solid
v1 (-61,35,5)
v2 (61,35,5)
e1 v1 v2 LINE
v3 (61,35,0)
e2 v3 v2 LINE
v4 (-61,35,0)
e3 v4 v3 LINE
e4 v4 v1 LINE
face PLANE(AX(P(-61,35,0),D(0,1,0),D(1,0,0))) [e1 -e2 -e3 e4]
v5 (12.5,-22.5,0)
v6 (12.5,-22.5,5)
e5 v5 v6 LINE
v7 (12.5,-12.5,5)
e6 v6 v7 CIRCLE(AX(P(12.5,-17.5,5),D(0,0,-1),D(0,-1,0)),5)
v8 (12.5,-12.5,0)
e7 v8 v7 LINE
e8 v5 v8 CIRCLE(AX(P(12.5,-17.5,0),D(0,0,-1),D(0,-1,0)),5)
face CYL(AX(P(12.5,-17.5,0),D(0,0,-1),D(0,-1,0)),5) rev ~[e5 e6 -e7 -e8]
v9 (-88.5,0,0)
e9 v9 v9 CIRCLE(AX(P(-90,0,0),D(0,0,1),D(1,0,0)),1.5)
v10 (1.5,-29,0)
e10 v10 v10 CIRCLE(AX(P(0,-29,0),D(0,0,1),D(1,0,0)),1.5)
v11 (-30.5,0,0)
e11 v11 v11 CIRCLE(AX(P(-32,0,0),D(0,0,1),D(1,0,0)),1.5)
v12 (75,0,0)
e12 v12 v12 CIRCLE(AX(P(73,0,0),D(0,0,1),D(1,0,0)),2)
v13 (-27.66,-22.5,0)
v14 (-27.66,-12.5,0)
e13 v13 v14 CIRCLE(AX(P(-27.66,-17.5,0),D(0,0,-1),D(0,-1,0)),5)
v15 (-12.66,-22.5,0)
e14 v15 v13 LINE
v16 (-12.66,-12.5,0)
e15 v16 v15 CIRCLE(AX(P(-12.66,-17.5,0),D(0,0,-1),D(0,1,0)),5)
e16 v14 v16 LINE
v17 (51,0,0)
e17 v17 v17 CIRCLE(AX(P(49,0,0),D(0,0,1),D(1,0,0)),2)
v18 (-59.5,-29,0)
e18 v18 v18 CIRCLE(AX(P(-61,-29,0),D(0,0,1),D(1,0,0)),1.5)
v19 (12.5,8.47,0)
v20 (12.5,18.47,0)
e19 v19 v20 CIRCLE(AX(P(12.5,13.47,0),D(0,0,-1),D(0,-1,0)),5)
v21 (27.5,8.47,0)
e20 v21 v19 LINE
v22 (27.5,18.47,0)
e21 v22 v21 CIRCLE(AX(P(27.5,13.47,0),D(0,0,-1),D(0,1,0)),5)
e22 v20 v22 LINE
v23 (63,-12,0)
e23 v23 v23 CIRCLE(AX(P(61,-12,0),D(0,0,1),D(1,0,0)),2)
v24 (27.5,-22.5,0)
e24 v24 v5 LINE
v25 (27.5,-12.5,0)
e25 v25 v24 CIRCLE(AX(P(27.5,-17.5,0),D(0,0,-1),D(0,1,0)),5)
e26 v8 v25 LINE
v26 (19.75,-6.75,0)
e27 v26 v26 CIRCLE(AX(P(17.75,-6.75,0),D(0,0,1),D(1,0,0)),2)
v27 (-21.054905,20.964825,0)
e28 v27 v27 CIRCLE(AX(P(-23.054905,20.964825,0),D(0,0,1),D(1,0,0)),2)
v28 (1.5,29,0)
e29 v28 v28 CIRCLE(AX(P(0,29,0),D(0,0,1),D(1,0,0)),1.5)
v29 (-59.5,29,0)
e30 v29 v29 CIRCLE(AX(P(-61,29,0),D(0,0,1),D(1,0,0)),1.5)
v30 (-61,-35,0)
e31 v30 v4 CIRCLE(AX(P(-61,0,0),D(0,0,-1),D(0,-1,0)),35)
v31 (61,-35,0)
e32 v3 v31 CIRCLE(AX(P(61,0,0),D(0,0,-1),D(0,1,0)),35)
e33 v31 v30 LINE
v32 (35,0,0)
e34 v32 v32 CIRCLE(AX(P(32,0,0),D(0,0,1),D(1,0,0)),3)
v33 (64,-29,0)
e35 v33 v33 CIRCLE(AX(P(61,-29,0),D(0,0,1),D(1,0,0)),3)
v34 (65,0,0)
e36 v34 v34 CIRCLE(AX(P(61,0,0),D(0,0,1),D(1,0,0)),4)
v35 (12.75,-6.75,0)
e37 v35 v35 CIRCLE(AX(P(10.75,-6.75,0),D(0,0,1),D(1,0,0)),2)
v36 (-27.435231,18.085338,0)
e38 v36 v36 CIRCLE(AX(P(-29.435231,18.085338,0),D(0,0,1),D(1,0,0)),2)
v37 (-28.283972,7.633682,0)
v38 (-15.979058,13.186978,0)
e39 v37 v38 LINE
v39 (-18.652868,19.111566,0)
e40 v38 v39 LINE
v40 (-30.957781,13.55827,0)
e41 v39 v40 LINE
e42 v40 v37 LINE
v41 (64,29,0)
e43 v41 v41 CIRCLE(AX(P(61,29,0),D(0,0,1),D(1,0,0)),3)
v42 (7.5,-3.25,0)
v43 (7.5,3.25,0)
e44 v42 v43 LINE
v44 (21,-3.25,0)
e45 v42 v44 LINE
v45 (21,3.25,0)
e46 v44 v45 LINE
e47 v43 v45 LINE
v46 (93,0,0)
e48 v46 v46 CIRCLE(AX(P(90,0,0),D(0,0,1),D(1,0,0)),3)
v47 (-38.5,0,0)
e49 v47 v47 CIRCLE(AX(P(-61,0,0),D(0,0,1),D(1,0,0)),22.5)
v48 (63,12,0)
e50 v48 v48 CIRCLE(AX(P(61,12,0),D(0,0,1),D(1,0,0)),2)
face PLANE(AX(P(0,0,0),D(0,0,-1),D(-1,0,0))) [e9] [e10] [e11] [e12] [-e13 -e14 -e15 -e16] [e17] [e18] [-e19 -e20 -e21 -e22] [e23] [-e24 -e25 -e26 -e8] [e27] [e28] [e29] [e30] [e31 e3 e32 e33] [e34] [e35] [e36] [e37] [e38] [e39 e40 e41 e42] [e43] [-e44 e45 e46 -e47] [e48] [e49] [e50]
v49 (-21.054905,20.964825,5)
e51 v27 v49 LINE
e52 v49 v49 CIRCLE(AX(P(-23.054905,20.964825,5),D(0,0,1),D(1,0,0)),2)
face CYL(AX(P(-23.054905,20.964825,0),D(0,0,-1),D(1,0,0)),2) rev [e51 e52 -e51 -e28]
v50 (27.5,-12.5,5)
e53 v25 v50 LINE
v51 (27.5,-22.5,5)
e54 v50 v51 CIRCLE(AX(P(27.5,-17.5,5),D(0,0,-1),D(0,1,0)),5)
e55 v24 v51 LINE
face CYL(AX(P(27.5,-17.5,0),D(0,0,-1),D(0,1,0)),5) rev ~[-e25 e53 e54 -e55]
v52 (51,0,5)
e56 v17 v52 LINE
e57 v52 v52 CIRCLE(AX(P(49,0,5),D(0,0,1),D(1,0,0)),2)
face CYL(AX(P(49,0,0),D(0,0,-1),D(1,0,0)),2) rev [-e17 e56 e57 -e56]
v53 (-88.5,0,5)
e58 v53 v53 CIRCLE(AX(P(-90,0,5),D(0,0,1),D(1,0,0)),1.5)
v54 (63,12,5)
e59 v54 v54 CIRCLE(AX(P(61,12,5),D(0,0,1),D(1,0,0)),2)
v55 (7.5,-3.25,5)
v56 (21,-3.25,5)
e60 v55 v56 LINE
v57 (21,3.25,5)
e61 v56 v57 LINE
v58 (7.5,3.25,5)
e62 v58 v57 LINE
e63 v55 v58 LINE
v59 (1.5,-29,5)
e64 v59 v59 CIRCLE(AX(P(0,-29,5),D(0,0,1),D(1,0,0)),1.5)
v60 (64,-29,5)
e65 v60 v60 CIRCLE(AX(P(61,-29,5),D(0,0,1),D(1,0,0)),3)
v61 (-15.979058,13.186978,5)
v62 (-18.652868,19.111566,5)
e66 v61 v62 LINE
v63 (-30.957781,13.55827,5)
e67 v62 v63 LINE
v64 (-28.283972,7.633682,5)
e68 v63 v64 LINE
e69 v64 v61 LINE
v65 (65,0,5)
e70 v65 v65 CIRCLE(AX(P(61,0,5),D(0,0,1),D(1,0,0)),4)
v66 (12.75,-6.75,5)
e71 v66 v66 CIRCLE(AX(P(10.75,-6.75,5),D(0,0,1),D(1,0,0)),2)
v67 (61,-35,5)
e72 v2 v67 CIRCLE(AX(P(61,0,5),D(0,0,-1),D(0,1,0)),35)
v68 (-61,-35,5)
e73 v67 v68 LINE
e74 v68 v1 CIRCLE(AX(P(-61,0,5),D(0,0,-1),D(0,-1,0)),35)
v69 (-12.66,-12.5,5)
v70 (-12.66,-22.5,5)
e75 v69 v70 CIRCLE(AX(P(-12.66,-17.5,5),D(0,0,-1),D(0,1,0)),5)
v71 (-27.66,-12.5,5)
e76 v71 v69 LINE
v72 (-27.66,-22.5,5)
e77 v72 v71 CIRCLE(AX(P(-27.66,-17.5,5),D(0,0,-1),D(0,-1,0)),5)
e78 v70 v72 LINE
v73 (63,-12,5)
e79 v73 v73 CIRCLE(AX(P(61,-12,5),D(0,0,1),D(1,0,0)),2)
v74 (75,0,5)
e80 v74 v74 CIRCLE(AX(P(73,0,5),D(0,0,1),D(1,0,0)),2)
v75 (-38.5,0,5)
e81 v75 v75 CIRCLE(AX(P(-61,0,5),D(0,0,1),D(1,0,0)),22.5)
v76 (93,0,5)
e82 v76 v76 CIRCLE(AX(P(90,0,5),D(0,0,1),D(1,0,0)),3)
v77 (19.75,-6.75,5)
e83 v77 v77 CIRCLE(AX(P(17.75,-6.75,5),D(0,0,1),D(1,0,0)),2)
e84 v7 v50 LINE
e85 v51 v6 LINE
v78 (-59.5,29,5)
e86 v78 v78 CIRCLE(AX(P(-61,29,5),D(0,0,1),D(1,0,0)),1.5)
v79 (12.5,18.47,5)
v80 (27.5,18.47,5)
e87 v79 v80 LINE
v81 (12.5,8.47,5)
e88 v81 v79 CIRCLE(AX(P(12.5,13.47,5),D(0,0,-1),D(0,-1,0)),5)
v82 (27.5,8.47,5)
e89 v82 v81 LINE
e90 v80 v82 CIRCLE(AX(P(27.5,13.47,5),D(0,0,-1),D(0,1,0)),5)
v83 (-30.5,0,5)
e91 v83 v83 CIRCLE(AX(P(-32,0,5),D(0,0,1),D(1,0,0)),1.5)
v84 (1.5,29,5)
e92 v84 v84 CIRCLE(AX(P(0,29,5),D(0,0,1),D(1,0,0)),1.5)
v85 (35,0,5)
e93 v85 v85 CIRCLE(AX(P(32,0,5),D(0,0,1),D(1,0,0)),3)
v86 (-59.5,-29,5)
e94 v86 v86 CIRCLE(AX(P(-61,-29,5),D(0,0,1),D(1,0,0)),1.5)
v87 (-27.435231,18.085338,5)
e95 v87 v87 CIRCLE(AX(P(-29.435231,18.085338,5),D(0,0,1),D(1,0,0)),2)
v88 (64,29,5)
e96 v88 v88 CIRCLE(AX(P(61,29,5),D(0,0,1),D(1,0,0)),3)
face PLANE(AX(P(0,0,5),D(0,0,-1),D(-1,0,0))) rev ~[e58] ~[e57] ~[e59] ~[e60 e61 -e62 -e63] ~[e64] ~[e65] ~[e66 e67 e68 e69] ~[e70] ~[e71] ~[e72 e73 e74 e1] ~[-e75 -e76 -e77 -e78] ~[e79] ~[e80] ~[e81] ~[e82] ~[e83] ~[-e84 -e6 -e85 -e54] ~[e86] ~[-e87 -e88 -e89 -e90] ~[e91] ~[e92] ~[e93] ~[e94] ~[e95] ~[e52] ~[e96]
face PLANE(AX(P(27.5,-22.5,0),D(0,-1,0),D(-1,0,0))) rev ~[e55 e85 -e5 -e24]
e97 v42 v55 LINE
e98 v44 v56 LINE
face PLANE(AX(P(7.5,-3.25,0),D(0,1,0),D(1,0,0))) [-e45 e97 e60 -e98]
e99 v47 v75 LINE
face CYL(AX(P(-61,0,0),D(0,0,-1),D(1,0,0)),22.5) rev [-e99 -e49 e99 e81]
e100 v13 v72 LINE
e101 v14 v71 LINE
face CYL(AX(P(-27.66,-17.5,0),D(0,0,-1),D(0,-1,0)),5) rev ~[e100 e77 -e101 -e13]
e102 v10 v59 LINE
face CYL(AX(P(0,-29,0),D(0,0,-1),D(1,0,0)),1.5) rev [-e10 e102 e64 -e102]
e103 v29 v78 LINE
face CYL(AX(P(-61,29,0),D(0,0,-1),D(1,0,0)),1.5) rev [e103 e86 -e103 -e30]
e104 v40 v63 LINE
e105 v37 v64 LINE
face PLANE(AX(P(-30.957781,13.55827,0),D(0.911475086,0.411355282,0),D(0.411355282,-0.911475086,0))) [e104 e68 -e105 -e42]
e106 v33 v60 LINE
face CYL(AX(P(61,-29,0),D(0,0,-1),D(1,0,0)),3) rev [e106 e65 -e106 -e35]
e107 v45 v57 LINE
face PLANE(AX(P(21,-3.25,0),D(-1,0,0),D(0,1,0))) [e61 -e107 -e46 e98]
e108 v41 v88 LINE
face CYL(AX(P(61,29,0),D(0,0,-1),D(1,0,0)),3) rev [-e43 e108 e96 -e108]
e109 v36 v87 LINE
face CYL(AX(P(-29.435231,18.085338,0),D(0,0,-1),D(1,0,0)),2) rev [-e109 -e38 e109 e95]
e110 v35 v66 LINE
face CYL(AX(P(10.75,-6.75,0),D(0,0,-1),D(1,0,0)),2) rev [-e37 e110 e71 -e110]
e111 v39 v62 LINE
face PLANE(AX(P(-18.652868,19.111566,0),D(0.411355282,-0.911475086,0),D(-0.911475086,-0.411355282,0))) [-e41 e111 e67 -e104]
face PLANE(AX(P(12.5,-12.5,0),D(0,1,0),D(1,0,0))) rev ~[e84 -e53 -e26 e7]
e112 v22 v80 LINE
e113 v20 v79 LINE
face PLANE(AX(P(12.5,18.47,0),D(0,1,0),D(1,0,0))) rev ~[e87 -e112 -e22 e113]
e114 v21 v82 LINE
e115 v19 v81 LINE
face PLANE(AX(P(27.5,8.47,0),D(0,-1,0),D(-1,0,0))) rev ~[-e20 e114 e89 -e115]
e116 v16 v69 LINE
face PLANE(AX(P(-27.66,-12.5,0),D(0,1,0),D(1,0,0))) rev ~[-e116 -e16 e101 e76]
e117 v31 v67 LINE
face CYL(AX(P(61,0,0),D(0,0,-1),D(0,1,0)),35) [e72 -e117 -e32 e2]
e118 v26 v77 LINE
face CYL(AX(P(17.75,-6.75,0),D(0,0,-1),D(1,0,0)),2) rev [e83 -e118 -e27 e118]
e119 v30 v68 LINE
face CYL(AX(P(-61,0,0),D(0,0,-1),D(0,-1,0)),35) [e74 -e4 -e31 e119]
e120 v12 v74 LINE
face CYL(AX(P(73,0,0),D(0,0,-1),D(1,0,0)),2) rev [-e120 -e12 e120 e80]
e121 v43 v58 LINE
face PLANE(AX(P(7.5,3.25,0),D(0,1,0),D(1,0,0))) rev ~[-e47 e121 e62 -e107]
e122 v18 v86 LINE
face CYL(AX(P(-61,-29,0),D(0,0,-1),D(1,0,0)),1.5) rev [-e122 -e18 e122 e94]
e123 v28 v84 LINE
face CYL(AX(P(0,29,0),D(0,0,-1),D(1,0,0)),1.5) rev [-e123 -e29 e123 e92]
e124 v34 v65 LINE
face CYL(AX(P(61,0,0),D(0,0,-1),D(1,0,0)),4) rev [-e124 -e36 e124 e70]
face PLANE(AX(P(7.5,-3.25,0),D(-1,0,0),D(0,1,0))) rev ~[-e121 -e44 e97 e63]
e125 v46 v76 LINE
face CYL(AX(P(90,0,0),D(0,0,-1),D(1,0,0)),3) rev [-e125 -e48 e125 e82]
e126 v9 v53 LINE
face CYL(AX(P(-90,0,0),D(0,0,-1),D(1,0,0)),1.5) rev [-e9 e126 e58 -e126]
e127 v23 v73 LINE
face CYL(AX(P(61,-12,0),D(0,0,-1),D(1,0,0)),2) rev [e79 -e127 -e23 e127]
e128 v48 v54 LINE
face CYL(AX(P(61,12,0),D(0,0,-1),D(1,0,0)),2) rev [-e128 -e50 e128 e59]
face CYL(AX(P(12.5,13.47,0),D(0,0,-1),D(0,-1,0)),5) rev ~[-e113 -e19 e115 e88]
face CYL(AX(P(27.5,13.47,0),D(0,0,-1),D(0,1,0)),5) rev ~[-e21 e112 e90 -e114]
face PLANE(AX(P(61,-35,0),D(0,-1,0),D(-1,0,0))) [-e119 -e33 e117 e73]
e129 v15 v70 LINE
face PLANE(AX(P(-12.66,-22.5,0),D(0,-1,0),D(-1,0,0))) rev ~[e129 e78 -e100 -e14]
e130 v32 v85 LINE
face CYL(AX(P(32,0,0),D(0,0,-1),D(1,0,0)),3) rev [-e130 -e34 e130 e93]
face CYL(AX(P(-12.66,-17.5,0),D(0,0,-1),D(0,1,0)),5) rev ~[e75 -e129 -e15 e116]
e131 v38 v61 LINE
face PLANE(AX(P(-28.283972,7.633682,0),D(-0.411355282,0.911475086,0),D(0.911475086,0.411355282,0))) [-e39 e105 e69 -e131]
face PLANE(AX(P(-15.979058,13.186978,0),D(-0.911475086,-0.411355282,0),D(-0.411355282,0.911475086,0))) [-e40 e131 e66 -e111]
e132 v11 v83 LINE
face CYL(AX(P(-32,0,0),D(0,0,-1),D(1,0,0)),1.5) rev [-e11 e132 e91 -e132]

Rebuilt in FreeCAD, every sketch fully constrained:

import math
import FreeCAD as App
import Part
import Sketcher
Q = App.Units.Quantity


def add_polygon(sketch, points):
    """Adds a closed chain of lines whose ends are joined by coincident constraints."""
    first, n = sketch.GeometryCount, len(points)
    for a, b in zip(points, points[1:] + points[:1]):
        sketch.addGeometry(Part.LineSegment(App.Vector(*a, 0), App.Vector(*b, 0)), False)
    for i in range(n):
        sketch.addConstraint(Sketcher.Constraint("Coincident", first + i, 2, first + (i + 1) % n, 1))

doc = App.newDocument("Part")
body = doc.addObject("PartDesign::Body", "Body")

sketch1 = doc.addObject("Sketcher::SketchObject", "Sketch")
body.addObject(sketch1)
sketch1.AttachmentSupport = (doc.XY_Plane, [""])
sketch1.MapMode = "FlatFace"
sketch1.addGeometry(Part.LineSegment(App.Vector(-61, -35, 0), App.Vector(61, -35, 0)), False)
sketch1.addGeometry(Part.ArcOfCircle(Part.Circle(App.Vector(61, 0, 0), App.Vector(0, 0, 1), 35), math.radians(-90), math.radians(90)), False)
sketch1.addGeometry(Part.LineSegment(App.Vector(61, 35, 0), App.Vector(-61, 35, 0)), False)
sketch1.addGeometry(Part.ArcOfCircle(Part.Circle(App.Vector(-61, 0, 0), App.Vector(0, 0, 1), 35), math.radians(90), math.radians(270)), False)
sketch1.addGeometry(Part.Circle(App.Vector(61, -29, 0), App.Vector(0, 0, 1), 3), False)
sketch1.addGeometry(Part.LineSegment(App.Vector(12.5, -12.5, 0), App.Vector(27.5, -12.5, 0)), False)
sketch1.addGeometry(Part.ArcOfCircle(Part.Circle(App.Vector(27.5, -17.5, 0), App.Vector(0, 0, 1), 5), math.radians(-90), math.radians(90)), False)
sketch1.addGeometry(Part.LineSegment(App.Vector(27.5, -22.5, 0), App.Vector(12.5, -22.5, 0)), False)
sketch1.addGeometry(Part.ArcOfCircle(Part.Circle(App.Vector(12.5, -17.5, 0), App.Vector(0, 0, 1), 5), math.radians(90), math.radians(270)), False)
sketch1.addGeometry(Part.Circle(App.Vector(61, -12, 0), App.Vector(0, 0, 1), 2), False)
sketch1.addGeometry(Part.Circle(App.Vector(17.75, -6.75, 0), App.Vector(0, 0, 1), 2), False)
sketch1.addGeometry(Part.Circle(App.Vector(10.75, -6.75, 0), App.Vector(0, 0, 1), 2), False)
sketch1.addGeometry(Part.Circle(App.Vector(0, -29, 0), App.Vector(0, 0, 1), 1.5), False)
sketch1.addGeometry(Part.LineSegment(App.Vector(-27.66, -12.5, 0), App.Vector(-12.66, -12.5, 0)), False)
sketch1.addGeometry(Part.ArcOfCircle(Part.Circle(App.Vector(-12.66, -17.5, 0), App.Vector(0, 0, 1), 5), math.radians(-90), math.radians(90)), False)
sketch1.addGeometry(Part.LineSegment(App.Vector(-12.66, -22.5, 0), App.Vector(-27.66, -22.5, 0)), False)
sketch1.addGeometry(Part.ArcOfCircle(Part.Circle(App.Vector(-27.66, -17.5, 0), App.Vector(0, 0, 1), 5), math.radians(90), math.radians(270)), False)
sketch1.addGeometry(Part.Circle(App.Vector(-61, -29, 0), App.Vector(0, 0, 1), 1.5), False)
sketch1.addGeometry(Part.Circle(App.Vector(90, 0, 0), App.Vector(0, 0, 1), 3), False)
sketch1.addGeometry(Part.Circle(App.Vector(73, 0, 0), App.Vector(0, 0, 1), 2), False)
sketch1.addGeometry(Part.Circle(App.Vector(61, 0, 0), App.Vector(0, 0, 1), 4), False)
sketch1.addGeometry(Part.Circle(App.Vector(49, 0, 0), App.Vector(0, 0, 1), 2), False)
sketch1.addGeometry(Part.Circle(App.Vector(61, 12, 0), App.Vector(0, 0, 1), 2), False)
sketch1.addGeometry(Part.Circle(App.Vector(32, 0, 0), App.Vector(0, 0, 1), 3), False)
add_polygon(sketch1, [(7.5, -3.25), (7.5, 3.25), (21, 3.25), (21, -3.25)])
sketch1.addGeometry(Part.LineSegment(App.Vector(12.5, 18.47, 0), App.Vector(27.5, 18.47, 0)), False)
sketch1.addGeometry(Part.ArcOfCircle(Part.Circle(App.Vector(27.5, 13.47, 0), App.Vector(0, 0, 1), 5), math.radians(-90), math.radians(90)), False)
sketch1.addGeometry(Part.LineSegment(App.Vector(27.5, 8.47, 0), App.Vector(12.5, 8.47, 0)), False)
sketch1.addGeometry(Part.ArcOfCircle(Part.Circle(App.Vector(12.5, 13.47, 0), App.Vector(0, 0, 1), 5), math.radians(90), math.radians(270)), False)
sketch1.addGeometry(Part.Circle(App.Vector(61, 29, 0), App.Vector(0, 0, 1), 3), False)
sketch1.addGeometry(Part.Circle(App.Vector(-32, 0, 0), App.Vector(0, 0, 1), 1.5), False)
add_polygon(sketch1, [(-30.957781, 13.55827), (-18.652868, 19.111566), (-15.979058, 13.186978), (-28.283972, 7.633682)])
sketch1.addGeometry(Part.Circle(App.Vector(-61, 0, 0), App.Vector(0, 0, 1), 22.5), False)
sketch1.addGeometry(Part.Circle(App.Vector(-90, 0, 0), App.Vector(0, 0, 1), 1.5), False)
sketch1.addGeometry(Part.Circle(App.Vector(-29.435231, 18.085338, 0), App.Vector(0, 0, 1), 2), False)
sketch1.addGeometry(Part.Circle(App.Vector(-23.054905, 20.964825, 0), App.Vector(0, 0, 1), 2), False)
sketch1.addGeometry(Part.Circle(App.Vector(0, 29, 0), App.Vector(0, 0, 1), 1.5), False)
sketch1.addGeometry(Part.Circle(App.Vector(-61, 29, 0), App.Vector(0, 0, 1), 1.5), False)
sketch1.addConstraint([
    Sketcher.Constraint("Tangent", 0, 2, 1, 1),
    Sketcher.Constraint("Tangent", 1, 2, 2, 1),
    Sketcher.Constraint("Tangent", 2, 2, 3, 1),
    Sketcher.Constraint("Tangent", 3, 2, 0, 1),
    Sketcher.Constraint("Tangent", 5, 2, 6, 2),
    Sketcher.Constraint("Tangent", 6, 1, 7, 1),
    Sketcher.Constraint("Tangent", 7, 2, 8, 2),
    Sketcher.Constraint("Tangent", 8, 1, 5, 1),
    Sketcher.Constraint("Tangent", 13, 2, 14, 2),
    Sketcher.Constraint("Tangent", 14, 1, 15, 1),
    Sketcher.Constraint("Tangent", 15, 2, 16, 2),
    Sketcher.Constraint("Tangent", 16, 1, 13, 1),
    Sketcher.Constraint("Tangent", 28, 2, 29, 2),
    Sketcher.Constraint("Tangent", 29, 1, 30, 1),
    Sketcher.Constraint("Tangent", 30, 2, 31, 2),
    Sketcher.Constraint("Tangent", 31, 1, 28, 1),
    Sketcher.Constraint("Horizontal", 0),
    Sketcher.Constraint("Horizontal", 2),
    Sketcher.Constraint("Horizontal", 5),
    Sketcher.Constraint("Horizontal", 7),
    Sketcher.Constraint("Horizontal", 13),
    Sketcher.Constraint("Horizontal", 15),
    Sketcher.Constraint("Vertical", 24),
    Sketcher.Constraint("Horizontal", 25),
    Sketcher.Constraint("Vertical", 26),
    Sketcher.Constraint("Horizontal", 27),
    Sketcher.Constraint("Horizontal", 28),
    Sketcher.Constraint("Horizontal", 30),
    Sketcher.Constraint("Coincident", 20, 3, 1, 3),
    Sketcher.Constraint("Coincident", 38, 3, 3, 3),
    Sketcher.Constraint("Equal", 9, 10),
    Sketcher.Constraint("Equal", 10, 11),
    Sketcher.Constraint("Equal", 8, 14),
    Sketcher.Constraint("Equal", 12, 17),
    Sketcher.Constraint("Equal", 4, 18),
    Sketcher.Constraint("Equal", 11, 19),
    Sketcher.Constraint("Equal", 19, 21),
    Sketcher.Constraint("Equal", 21, 22),
    Sketcher.Constraint("Equal", 18, 23),
    Sketcher.Constraint("Equal", 16, 29),
    Sketcher.Constraint("Equal", 23, 32),
    Sketcher.Constraint("Equal", 17, 33),
    Sketcher.Constraint("Equal", 33, 39),
    Sketcher.Constraint("Equal", 22, 40),
    Sketcher.Constraint("Equal", 40, 41),
    Sketcher.Constraint("Equal", 39, 42),
    Sketcher.Constraint("Equal", 42, 43),
    Sketcher.Constraint("Symmetric", 1, 3, 3, 3, -1, 1),
    Sketcher.Constraint("Symmetric", 17, 3, 32, 3, -1, 1),
    Sketcher.Constraint("Symmetric", 23, 3, 33, 3, -1, 1),
    Sketcher.Constraint("Symmetric", 18, 3, 39, 3, -1, 1),
    Sketcher.Constraint("Symmetric", 12, 3, 42, 3, -1, 1),
    Sketcher.Constraint("Symmetric", 4, 3, 43, 3, -1, 1),
    Sketcher.Constraint("Symmetric", 4, 3, 17, 3, -2),
    Sketcher.Constraint("Symmetric", 9, 3, 22, 3, -1),
    Sketcher.Constraint("PointOnObject", 12, 3, -2),
    Sketcher.Constraint("PointOnObject", 18, 3, -1),
    Sketcher.Constraint("PointOnObject", 19, 3, -1),
    Sketcher.Constraint("PointOnObject", 21, 3, -1),
    Sketcher.Constraint("PointOnObject", 23, 3, -1),
    Sketcher.Constraint("Perpendicular", 34, 35),
    Sketcher.Constraint("Perpendicular", 35, 36),
    Sketcher.Constraint("Perpendicular", 36, 37),
    Sketcher.Constraint("Horizontal", 10, 3, 11, 3),
    Sketcher.Constraint("Horizontal", 4, 3, 12, 3),
    Sketcher.Constraint("Horizontal", 8, 3, 14, 3),
    Sketcher.Constraint("Vertical", 1, 3, 4, 3),
    Sketcher.Constraint("Vertical", 4, 3, 9, 3),
    Sketcher.Constraint("Vertical", 6, 3, 29, 3),
    Sketcher.Constraint("Vertical", 8, 3, 31, 3),
    Sketcher.Constraint("Equal", 7, 13),
    Sketcher.Constraint("Diameter", 4, 6.0),
    Sketcher.Constraint("Diameter", 9, 4.0),
    Sketcher.Constraint("Diameter", 12, 3.0),
    Sketcher.Constraint("Diameter", 20, 8.0),
    Sketcher.Constraint("Diameter", 38, 45.0),
    Sketcher.Constraint("Radius", 1, 35.0),
    Sketcher.Constraint("Radius", 6, 5.0),
    Sketcher.Constraint("DistanceX", 0, 1, 0, 2, 122.0),
    Sketcher.Constraint("DistanceX", 5, 1, 5, 2, 15.0),
    Sketcher.Constraint("DistanceX", 25, 1, 25, 2, 13.5),
    Sketcher.Constraint("DistanceY", 24, 1, 24, 2, 6.5),
    Sketcher.Constraint("DistanceY", 4, 3, -1, 1, 29.0),
    Sketcher.Constraint("DistanceY", 9, 3, -1, 1, 12.0),
    Sketcher.Constraint("DistanceX", -1, 1, 18, 3, 90.0),
    Sketcher.Constraint("DistanceX", -1, 1, 19, 3, 73.0),
    Sketcher.Constraint("DistanceX", -1, 1, 21, 3, 49.0),
    Sketcher.Constraint("DistanceX", -1, 1, 23, 3, 32.0),
    Sketcher.Constraint("DistanceX", -1, 1, 25, 2, 21.0),
    Sketcher.Constraint("DistanceX", 11, 3, 10, 3, 7.0),
    Sketcher.Constraint("DistanceY", 11, 3, 24, 2, 10.0),
    Sketcher.Constraint("DistanceX", 24, 2, 31, 3, 5.0),
    Sketcher.Constraint("Distance", 34, 13.5),
    Sketcher.Constraint("Distance", 35, 6.5),
    Sketcher.Constraint("DistanceY", 6, 3, -1, 1, 17.5),
    Sketcher.Constraint("Angle", 34, Q("24.29 deg")),
    Sketcher.Constraint("DistanceX", -1, 1, 10, 3, 17.75),
    Sketcher.Constraint("DistanceY", 10, 3, -1, 1, 6.75),
    Sketcher.Constraint("DistanceX", 14, 3, -1, 1, 12.66),
    Sketcher.Constraint("DistanceY", -1, 1, 29, 3, 13.47),
    Sketcher.Constraint("DistanceX", 40, 3, -1, 1, 29.435231),
    Sketcher.Constraint("DistanceX", 35, 2, -1, 1, 15.979058),
    Sketcher.Constraint("DistanceY", -1, 1, 35, 2, 13.186978),
    Sketcher.Constraint("DistanceY", 34, 2, 41, 3, 1.853258),
    Sketcher.Constraint("DistanceY", 40, 3, 34, 2, 1.026229),
    Sketcher.Constraint("DistanceX", 41, 3, -1, 1, 23.054905),
])
pad1 = doc.addObject("PartDesign::Pad", "Pad")
body.addObject(pad1)
pad1.Profile = sketch1
pad1.Length = 5

doc.recompute()
